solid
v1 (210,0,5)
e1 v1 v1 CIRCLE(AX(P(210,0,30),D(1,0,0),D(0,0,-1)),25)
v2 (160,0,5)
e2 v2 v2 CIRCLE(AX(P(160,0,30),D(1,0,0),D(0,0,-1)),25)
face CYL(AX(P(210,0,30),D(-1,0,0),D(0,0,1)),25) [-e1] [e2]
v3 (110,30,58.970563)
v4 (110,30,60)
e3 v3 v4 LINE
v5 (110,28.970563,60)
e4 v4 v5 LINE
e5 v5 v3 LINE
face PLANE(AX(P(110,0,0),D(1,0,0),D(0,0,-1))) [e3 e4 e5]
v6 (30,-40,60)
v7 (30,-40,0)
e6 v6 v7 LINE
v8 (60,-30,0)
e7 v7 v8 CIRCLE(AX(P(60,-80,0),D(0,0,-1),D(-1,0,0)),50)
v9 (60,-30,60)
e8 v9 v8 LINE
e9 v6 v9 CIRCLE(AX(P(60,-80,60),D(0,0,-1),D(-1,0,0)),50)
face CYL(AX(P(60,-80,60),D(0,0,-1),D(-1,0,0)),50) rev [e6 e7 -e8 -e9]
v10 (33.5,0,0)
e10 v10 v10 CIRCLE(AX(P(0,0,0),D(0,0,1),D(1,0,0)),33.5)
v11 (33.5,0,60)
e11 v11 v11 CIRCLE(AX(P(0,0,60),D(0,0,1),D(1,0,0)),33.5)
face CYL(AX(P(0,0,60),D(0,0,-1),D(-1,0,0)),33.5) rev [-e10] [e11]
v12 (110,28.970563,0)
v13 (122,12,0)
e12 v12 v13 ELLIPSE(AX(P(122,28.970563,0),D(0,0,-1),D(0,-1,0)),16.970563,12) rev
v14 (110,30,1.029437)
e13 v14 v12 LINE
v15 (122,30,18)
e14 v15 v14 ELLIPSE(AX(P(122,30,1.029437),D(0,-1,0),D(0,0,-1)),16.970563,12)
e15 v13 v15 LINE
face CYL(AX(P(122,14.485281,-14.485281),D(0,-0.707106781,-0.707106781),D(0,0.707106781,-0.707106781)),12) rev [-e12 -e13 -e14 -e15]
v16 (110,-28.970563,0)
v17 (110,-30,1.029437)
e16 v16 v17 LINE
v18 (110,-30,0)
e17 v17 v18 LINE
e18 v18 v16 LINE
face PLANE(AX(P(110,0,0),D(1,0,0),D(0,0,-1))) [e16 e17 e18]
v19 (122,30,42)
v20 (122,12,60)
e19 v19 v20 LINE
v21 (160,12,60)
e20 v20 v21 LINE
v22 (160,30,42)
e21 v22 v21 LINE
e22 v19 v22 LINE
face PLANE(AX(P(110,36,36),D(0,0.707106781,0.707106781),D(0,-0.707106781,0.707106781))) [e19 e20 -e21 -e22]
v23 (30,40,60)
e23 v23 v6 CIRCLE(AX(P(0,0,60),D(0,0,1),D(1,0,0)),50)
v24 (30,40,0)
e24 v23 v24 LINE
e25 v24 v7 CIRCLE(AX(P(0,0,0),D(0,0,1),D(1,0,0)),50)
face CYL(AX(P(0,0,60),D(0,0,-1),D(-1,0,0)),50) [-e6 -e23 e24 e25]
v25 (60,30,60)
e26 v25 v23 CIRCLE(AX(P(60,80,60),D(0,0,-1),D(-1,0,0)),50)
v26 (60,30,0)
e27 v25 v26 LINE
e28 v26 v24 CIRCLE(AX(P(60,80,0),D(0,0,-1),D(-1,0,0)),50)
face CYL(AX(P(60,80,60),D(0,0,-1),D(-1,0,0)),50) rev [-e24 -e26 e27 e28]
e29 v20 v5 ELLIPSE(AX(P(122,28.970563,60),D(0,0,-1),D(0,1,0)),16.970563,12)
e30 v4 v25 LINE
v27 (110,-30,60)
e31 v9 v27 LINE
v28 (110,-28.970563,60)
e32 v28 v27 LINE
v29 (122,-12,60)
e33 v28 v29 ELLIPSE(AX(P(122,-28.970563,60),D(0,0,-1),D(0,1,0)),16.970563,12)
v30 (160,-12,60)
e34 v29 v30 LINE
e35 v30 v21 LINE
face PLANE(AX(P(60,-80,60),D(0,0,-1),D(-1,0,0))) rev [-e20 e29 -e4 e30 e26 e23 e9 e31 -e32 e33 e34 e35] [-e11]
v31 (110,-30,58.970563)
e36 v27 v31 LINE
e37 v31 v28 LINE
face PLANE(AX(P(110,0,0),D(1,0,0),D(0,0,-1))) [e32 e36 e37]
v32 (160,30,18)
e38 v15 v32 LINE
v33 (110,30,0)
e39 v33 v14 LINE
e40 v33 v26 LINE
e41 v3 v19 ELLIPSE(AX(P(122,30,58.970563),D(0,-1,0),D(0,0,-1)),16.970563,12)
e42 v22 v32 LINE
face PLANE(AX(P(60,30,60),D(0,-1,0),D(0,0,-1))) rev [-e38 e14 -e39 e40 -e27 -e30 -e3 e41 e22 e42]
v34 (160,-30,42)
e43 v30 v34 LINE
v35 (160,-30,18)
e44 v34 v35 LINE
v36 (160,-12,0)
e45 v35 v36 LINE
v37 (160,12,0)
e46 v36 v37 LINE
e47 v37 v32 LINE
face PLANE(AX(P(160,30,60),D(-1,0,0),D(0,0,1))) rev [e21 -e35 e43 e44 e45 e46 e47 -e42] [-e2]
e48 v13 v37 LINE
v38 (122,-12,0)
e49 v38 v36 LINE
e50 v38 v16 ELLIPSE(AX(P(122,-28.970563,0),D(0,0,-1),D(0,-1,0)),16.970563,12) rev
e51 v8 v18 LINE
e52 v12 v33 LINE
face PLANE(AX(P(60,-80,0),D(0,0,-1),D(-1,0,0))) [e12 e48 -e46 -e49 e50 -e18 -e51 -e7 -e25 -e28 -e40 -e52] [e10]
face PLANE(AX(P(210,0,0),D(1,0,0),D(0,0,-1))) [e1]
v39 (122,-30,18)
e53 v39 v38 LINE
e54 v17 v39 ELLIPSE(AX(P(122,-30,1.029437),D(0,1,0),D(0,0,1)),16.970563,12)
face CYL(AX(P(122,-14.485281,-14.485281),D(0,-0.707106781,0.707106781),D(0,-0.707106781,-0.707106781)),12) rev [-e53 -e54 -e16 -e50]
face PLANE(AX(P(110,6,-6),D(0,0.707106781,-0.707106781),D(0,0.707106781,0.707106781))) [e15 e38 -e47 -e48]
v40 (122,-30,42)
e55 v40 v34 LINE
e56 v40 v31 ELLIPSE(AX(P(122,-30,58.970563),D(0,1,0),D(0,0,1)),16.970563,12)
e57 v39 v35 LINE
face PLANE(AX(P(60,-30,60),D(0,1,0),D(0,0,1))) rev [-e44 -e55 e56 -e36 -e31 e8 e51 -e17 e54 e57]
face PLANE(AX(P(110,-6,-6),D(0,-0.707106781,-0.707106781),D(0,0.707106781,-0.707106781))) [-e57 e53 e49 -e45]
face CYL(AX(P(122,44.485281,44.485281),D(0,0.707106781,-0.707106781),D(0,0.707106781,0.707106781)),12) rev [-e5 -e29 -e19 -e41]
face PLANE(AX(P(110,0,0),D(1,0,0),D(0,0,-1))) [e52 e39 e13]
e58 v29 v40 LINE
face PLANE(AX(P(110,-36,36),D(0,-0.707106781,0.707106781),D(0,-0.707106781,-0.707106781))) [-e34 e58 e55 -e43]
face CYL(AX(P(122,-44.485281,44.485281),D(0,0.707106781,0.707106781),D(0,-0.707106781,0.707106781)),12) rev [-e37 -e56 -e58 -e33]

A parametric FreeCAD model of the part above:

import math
import FreeCAD as App
import Part
import Sketcher
from FreeCAD import Vector


def edges_at(feature, points):
    """Names of the edges that pass closest to the given points."""
    edges = feature.Shape.Edges
    near = lambda p: min(range(len(edges)), key=lambda i: edges[i].distToShape(Part.Vertex(*p))[0])
    return sorted({f"Edge{near(p) + 1}" for p in points})


def add_polygon(sketch, points):
    """Adds a closed chain of lines whose ends are joined by coincident constraints."""
    first, n = sketch.GeometryCount, len(points)
    for a, b in zip(points, points[1:] + points[:1]):
        sketch.addGeometry(Part.LineSegment(App.Vector(*a, 0), App.Vector(*b, 0)), False)
    for i in range(n):
        sketch.addConstraint(Sketcher.Constraint("Coincident", first + i, 2, first + (i + 1) % n, 1))

doc = App.newDocument("Part")
body = doc.addObject("PartDesign::Body", "Body")

# Sketch on XY plane
sketch1 = body.newObject("Sketcher::SketchObject", "Sketch")
sketch1.AttachmentSupport = (doc.getObject("XY_Plane"), [""])
sketch1.MapMode = "FlatFace"
sketch1.addGeometry(Part.LineSegment(Vector(160, 30, 0), Vector(60, 30, 0)), False)
sketch1.addGeometry(Part.ArcOfCircle(Part.Circle(Vector(60, 80, 0), Vector(0, 0, 1), 50), math.radians(-126.869898), math.radians(-90)), False)
sketch1.addGeometry(Part.ArcOfCircle(Part.Circle(Vector(0, 0, 0), Vector(0, 0, 1), 50), math.radians(53.130102), math.radians(306.869898)), False)
sketch1.addGeometry(Part.ArcOfCircle(Part.Circle(Vector(60, -80, 0), Vector(0, 0, 1), 50), math.radians(90), math.radians(126.869898)), False)
sketch1.addGeometry(Part.LineSegment(Vector(60, -30, 0), Vector(160, -30, 0)), False)
sketch1.addGeometry(Part.LineSegment(Vector(160, -30, 0), Vector(160, 30, 0)), False)
sketch1.addGeometry(Part.Circle(Vector(0, 0, 0), Vector(0, 0, 1), 33.5), False)
sketch1.addConstraint(Sketcher.Constraint("Tangent", 0, 2, 1, 2))
sketch1.addConstraint(Sketcher.Constraint("Tangent", 1, 1, 2, 1))
sketch1.addConstraint(Sketcher.Constraint("Tangent", 2, 2, 3, 2))
sketch1.addConstraint(Sketcher.Constraint("Tangent", 3, 1, 4, 1))
sketch1.addConstraint(Sketcher.Constraint("Coincident", 4, 2, 5, 1))
sketch1.addConstraint(Sketcher.Constraint("Coincident", 5, 2, 0, 1))
sketch1.addConstraint(Sketcher.Constraint("Horizontal", 0))
sketch1.addConstraint(Sketcher.Constraint("Horizontal", 4))
sketch1.addConstraint(Sketcher.Constraint("Vertical", 5))
sketch1.addConstraint(Sketcher.Constraint("Coincident", 2, 3, -1, 1))
sketch1.addConstraint(Sketcher.Constraint("Coincident", 6, 3, -1, 1))
sketch1.addConstraint(Sketcher.Constraint("Equal", 1, 2))
sketch1.addConstraint(Sketcher.Constraint("Equal", 2, 3))
sketch1.addConstraint(Sketcher.Constraint("Vertical", 1, 3, 3, 3))
sketch1.addConstraint(Sketcher.Constraint("Diameter", 6, 67.0))
sketch1.addConstraint(Sketcher.Constraint("Radius", 1, 50.0))
sketch1.addConstraint(Sketcher.Constraint("DistanceX", 0, 2, 0, 1, 100.0))
sketch1.addConstraint(Sketcher.Constraint("DistanceY", 5, 1, 5, 2, 60.0))
pad1 = body.newObject("PartDesign::Pad", "Pad")
pad1.Profile = sketch1
pad1.Length = 60

# Sketch on YZ plane
sketch2 = body.newObject("Sketcher::SketchObject", "Sketch001")
sketch2.AttachmentSupport = (doc.getObject("YZ_Plane"), [""])
sketch2.MapMode = "FlatFace"
sketch2.AttachmentOffset = App.Placement(Vector(0, 0, 160), App.Rotation())
add_polygon(sketch2, [(12, 60), (30, 42), (30, 60)])  # lines 0-2
add_polygon(sketch2, [(30, 0), (30, 18), (12, 0)])  # lines 3-5
add_polygon(sketch2, [(-30, 0), (-12, 0), (-30, 18)])  # lines 6-8
add_polygon(sketch2, [(-30, 42), (-12, 60), (-30, 60)])  # lines 9-11
sketch2.addConstraint(Sketcher.Constraint("Vertical", 1))
sketch2.addConstraint(Sketcher.Constraint("Horizontal", 2))
sketch2.addConstraint(Sketcher.Constraint("Vertical", 3))
sketch2.addConstraint(Sketcher.Constraint("Horizontal", 5))
sketch2.addConstraint(Sketcher.Constraint("Horizontal", 6))
sketch2.addConstraint(Sketcher.Constraint("Vertical", 8))
sketch2.addConstraint(Sketcher.Constraint("Horizontal", 10))
sketch2.addConstraint(Sketcher.Constraint("Vertical", 11))
sketch2.addConstraint(Sketcher.Constraint("Symmetric", 4, 2, 6, 2, -1, 1))
sketch2.addConstraint(Sketcher.Constraint("Symmetric", 3, 2, 7, 2, -2))
sketch2.addConstraint(Sketcher.Constraint("Symmetric", 2, 2, 9, 2, -2))
sketch2.addConstraint(Sketcher.Constraint("Symmetric", 0, 2, 11, 2, -2))
sketch2.addConstraint(Sketcher.Constraint("PointOnObject", 4, 2, -1))
sketch2.addConstraint(Sketcher.Constraint("Perpendicular", 0, 4))
sketch2.addConstraint(Sketcher.Constraint("Perpendicular", 4, 7))
sketch2.addConstraint(Sketcher.Constraint("Vertical", 1, 2, 3, 2))
sketch2.addConstraint(Sketcher.Constraint("Vertical", 2, 2, 4, 2))
sketch2.addConstraint(Sketcher.Constraint("DistanceX", 2, 2, 2, 1, 18.0))
sketch2.addConstraint(Sketcher.Constraint("DistanceX", -1, 1, 0, 2, 30.0))
sketch2.addConstraint(Sketcher.Constraint("DistanceY", -1, 1, 0, 2, 42.0))
pocket1 = body.newObject("PartDesign::Pocket", "Pocket")
pocket1.Profile = sketch2
pocket1.Length = 50

# Sketch on YZ plane
sketch3 = body.newObject("Sketcher::SketchObject", "Sketch002")
sketch3.AttachmentSupport = (doc.getObject("YZ_Plane"), [""])
sketch3.MapMode = "FlatFace"
sketch3.AttachmentOffset = App.Placement(Vector(0, 0, 160), App.Rotation())
sketch3.addGeometry(Part.Circle(Vector(0, 30, 0), Vector(0, 0, 1), 25), False)
sketch3.addConstraint(Sketcher.Constraint("PointOnObject", 0, 3, -2))
sketch3.addConstraint(Sketcher.Constraint("Diameter", 0, 50.0))
sketch3.addConstraint(Sketcher.Constraint("DistanceY", -1, 1, 0, 3, 30.0))
pad2 = body.newObject("PartDesign::Pad", "Pad001")
pad2.Profile = sketch3
pad2.Length = 50
doc.recompute()

fillet = body.newObject("PartDesign::Fillet", "Fillet")
fillet.Base = (pad2, edges_at(pad2, [
    (110, -21, 51),
    (110, -21, 9),
    (110, 21, 9),
    (110, 21, 51),
]))
fillet.Radius = 12

doc.recompute()
